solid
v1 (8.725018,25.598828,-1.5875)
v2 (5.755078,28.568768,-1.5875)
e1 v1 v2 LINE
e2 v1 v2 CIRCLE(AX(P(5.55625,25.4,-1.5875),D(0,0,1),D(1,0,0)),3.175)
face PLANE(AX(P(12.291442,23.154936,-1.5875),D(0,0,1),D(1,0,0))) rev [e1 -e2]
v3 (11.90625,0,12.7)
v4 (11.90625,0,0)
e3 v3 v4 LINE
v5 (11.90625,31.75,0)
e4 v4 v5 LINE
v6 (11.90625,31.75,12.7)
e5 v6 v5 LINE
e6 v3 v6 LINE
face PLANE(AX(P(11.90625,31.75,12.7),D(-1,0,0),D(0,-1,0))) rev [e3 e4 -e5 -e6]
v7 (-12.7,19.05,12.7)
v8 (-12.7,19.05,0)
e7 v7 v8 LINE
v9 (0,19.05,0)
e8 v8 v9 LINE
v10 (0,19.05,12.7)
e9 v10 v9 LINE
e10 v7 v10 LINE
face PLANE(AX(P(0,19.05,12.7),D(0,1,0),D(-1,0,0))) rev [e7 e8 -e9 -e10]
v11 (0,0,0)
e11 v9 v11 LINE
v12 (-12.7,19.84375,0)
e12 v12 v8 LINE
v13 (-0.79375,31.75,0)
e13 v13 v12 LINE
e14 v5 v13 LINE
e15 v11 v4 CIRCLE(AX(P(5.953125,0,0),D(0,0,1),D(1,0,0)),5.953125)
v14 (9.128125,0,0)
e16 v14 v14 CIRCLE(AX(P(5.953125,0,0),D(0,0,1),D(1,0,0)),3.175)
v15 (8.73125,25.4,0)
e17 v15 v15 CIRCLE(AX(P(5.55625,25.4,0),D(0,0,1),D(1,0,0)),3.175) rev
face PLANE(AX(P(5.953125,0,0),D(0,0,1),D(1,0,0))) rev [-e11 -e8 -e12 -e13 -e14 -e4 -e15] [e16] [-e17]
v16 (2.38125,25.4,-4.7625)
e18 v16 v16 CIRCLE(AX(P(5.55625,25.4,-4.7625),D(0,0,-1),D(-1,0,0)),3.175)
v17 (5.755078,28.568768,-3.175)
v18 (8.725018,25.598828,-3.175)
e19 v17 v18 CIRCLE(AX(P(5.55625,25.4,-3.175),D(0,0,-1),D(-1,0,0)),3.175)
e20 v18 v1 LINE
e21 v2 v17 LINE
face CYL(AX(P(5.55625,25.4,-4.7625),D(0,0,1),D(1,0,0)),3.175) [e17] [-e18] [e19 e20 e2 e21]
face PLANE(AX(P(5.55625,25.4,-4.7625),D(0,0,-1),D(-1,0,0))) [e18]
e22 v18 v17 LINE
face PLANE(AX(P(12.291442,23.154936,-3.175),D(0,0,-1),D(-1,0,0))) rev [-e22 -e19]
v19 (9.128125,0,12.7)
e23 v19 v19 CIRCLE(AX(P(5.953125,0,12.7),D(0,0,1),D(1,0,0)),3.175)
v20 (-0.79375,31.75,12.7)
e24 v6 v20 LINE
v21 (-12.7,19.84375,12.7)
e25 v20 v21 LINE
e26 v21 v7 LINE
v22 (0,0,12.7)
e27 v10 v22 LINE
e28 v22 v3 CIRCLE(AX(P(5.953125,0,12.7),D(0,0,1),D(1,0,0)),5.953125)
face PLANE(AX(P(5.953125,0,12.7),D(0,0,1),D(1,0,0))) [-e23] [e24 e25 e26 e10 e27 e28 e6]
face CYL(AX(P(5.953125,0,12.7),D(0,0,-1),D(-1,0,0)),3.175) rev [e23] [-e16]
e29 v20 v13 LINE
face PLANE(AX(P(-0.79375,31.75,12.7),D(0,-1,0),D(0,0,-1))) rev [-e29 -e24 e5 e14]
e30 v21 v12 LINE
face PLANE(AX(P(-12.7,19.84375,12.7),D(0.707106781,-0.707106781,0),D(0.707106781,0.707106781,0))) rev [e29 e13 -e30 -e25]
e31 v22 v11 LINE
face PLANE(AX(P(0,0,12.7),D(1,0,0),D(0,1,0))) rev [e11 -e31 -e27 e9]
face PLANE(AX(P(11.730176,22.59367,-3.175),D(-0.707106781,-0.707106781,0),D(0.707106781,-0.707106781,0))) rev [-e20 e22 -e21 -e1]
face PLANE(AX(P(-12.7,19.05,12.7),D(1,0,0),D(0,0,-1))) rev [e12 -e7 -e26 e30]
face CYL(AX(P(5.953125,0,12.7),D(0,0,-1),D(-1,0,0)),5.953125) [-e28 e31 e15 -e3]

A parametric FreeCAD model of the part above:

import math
import FreeCAD as App
import Part
import Sketcher
Q = App.Units.Quantity


def add_polygon(sketch, points):
    """Adds a closed chain of lines whose ends are joined by coincident constraints."""
    first, n = sketch.GeometryCount, len(points)
    for a, b in zip(points, points[1:] + points[:1]):
        sketch.addGeometry(Part.LineSegment(App.Vector(*a, 0), App.Vector(*b, 0)), False)
    for i in range(n):
        sketch.addConstraint(Sketcher.Constraint("Coincident", first + i, 2, first + (i + 1) % n, 1))

doc = App.newDocument("Part")
body = doc.addObject("PartDesign::Body", "Body")

# Sketch on XY plane
sketch1 = body.newObject("Sketcher::SketchObject", "Sketch")
sketch1.AttachmentSupport = (doc.getObject("XY_Plane"), [""])
sketch1.MapMode = "FlatFace"
sketch1.addGeometry([
    Part.LineSegment(App.Vector(0, 19.05, 0), App.Vector(0, 0, 0)),  # 0
    Part.ArcOfCircle(Part.Circle(App.Vector(5.953125, 0, 0), App.Vector(0, 0, 1), 5.953125), math.radians(180), math.radians(360)),  # 1
    Part.LineSegment(App.Vector(11.90625, 0, 0), App.Vector(11.90625, 31.75, 0)),  # 2
    Part.LineSegment(App.Vector(11.90625, 31.75, 0), App.Vector(-0.79375, 31.75, 0)),  # 3
    Part.LineSegment(App.Vector(-0.79375, 31.75, 0), App.Vector(-12.7, 19.84375, 0)),  # 4
    Part.LineSegment(App.Vector(-12.7, 19.84375, 0), App.Vector(-12.7, 19.05, 0)),  # 5
    Part.LineSegment(App.Vector(-12.7, 19.05, 0), App.Vector(0, 19.05, 0)),  # 6
    Part.Circle(App.Vector(5.953125, 0, 0), App.Vector(0, 0, 1), 3.175),  # 7
], False)
sketch1.addConstraint([
    Sketcher.Constraint("Tangent", 0, 2, 1, 1),
    Sketcher.Constraint("Tangent", 1, 2, 2, 1),
    Sketcher.Constraint("Coincident", 2, 2, 3, 1),
    Sketcher.Constraint("Coincident", 3, 2, 4, 1),
    Sketcher.Constraint("Coincident", 4, 2, 5, 1),
    Sketcher.Constraint("Coincident", 5, 2, 6, 1),
    Sketcher.Constraint("Coincident", 6, 2, 0, 1),
    Sketcher.Constraint("Vertical", 0),
    Sketcher.Constraint("Vertical", 2),
    Sketcher.Constraint("Horizontal", 3),
    Sketcher.Constraint("Vertical", 5),
    Sketcher.Constraint("Horizontal", 6),
    Sketcher.Constraint("Coincident", 0, 2, -1, 1),
    Sketcher.Constraint("Coincident", 7, 3, 1, 3),
    Sketcher.Constraint("Equal", 3, 6),
    Sketcher.Constraint("Diameter", 7, Q("0.25 in")),
    Sketcher.Constraint("DistanceX", 3, 2, 3, 1, Q("0.5 in")),
    Sketcher.Constraint("Angle", 4, Q("-135 deg")),
    Sketcher.Constraint("Radius", 1, Q("0.234375 in")),
    Sketcher.Constraint("DistanceY", 0, 2, 0, 1, Q("0.75 in")),
    Sketcher.Constraint("DistanceY", 2, 1, 2, 2, Q("1.25 in")),
])
pad1 = body.newObject("PartDesign::Pad", "Pad")
pad1.Profile = sketch1
pad1.Length = Q("0.5 in")

# Sketch on XY plane
sketch2 = body.newObject("Sketcher::SketchObject", "Sketch001")
sketch2.AttachmentSupport = (doc.getObject("XY_Plane"), [""])
sketch2.MapMode = "FlatFace"
sketch2.addGeometry(Part.Circle(App.Vector(5.55625, 25.4, 0), App.Vector(0, 0, 1), 3.175), False)
sketch2.addConstraint([
    Sketcher.Constraint("Diameter", 0, Q("0.25 in")),
    Sketcher.Constraint("DistanceY", -1, 1, 0, 3, Q("1 in")),
    Sketcher.Constraint("DistanceX", -1, 1, 0, 3, Q("0.21875 in")),
])
pad2 = body.newObject("PartDesign::Pad", "Pad001")
pad2.Profile = sketch2
pad2.Length = Q("0.1875 in")
pad2.Reversed = True

# Sketch on an angled plane
sketch3 = body.newObject("Sketcher::SketchObject", "Sketch002")
sketch3.Placement = App.Placement(App.Vector(-12.166939, 12.166939, 0), App.Rotation(App.Vector(0, 0, 1), App.Vector(0.707106781, 0.707106781, 0), App.Vector(-0.707106781, 0.707106781, 0), "ZXY"))
add_polygon(sketch3, [(-3.175, 25.064374), (-3.175, 24.270624), (-1.5875, 24.270624), (-1.5875, 25.064374)])  # lines 0-3
sketch3.addConstraint([
    Sketcher.Constraint("Vertical", 0),
    Sketcher.Constraint("Horizontal", 1),
    Sketcher.Constraint("Vertical", 2),
    Sketcher.Constraint("Horizontal", 3),
    Sketcher.Constraint("DistanceX", 1, 1, 1, 2, Q("0.0625 in")),
    Sketcher.Constraint("DistanceY", 0, 2, 0, 1, Q("0.03125 in")),
    Sketcher.Constraint("DistanceX", 0, 2, -1, 1, Q("0.125 in")),
    Sketcher.Constraint("DistanceY", -1, 1, 0, 2, 24.270624),
])
pocket1 = body.newObject("PartDesign::Pocket", "Pocket")
pocket1.Profile = sketch3
pocket1.Length = Q("0.375 in")

doc.recompute()
